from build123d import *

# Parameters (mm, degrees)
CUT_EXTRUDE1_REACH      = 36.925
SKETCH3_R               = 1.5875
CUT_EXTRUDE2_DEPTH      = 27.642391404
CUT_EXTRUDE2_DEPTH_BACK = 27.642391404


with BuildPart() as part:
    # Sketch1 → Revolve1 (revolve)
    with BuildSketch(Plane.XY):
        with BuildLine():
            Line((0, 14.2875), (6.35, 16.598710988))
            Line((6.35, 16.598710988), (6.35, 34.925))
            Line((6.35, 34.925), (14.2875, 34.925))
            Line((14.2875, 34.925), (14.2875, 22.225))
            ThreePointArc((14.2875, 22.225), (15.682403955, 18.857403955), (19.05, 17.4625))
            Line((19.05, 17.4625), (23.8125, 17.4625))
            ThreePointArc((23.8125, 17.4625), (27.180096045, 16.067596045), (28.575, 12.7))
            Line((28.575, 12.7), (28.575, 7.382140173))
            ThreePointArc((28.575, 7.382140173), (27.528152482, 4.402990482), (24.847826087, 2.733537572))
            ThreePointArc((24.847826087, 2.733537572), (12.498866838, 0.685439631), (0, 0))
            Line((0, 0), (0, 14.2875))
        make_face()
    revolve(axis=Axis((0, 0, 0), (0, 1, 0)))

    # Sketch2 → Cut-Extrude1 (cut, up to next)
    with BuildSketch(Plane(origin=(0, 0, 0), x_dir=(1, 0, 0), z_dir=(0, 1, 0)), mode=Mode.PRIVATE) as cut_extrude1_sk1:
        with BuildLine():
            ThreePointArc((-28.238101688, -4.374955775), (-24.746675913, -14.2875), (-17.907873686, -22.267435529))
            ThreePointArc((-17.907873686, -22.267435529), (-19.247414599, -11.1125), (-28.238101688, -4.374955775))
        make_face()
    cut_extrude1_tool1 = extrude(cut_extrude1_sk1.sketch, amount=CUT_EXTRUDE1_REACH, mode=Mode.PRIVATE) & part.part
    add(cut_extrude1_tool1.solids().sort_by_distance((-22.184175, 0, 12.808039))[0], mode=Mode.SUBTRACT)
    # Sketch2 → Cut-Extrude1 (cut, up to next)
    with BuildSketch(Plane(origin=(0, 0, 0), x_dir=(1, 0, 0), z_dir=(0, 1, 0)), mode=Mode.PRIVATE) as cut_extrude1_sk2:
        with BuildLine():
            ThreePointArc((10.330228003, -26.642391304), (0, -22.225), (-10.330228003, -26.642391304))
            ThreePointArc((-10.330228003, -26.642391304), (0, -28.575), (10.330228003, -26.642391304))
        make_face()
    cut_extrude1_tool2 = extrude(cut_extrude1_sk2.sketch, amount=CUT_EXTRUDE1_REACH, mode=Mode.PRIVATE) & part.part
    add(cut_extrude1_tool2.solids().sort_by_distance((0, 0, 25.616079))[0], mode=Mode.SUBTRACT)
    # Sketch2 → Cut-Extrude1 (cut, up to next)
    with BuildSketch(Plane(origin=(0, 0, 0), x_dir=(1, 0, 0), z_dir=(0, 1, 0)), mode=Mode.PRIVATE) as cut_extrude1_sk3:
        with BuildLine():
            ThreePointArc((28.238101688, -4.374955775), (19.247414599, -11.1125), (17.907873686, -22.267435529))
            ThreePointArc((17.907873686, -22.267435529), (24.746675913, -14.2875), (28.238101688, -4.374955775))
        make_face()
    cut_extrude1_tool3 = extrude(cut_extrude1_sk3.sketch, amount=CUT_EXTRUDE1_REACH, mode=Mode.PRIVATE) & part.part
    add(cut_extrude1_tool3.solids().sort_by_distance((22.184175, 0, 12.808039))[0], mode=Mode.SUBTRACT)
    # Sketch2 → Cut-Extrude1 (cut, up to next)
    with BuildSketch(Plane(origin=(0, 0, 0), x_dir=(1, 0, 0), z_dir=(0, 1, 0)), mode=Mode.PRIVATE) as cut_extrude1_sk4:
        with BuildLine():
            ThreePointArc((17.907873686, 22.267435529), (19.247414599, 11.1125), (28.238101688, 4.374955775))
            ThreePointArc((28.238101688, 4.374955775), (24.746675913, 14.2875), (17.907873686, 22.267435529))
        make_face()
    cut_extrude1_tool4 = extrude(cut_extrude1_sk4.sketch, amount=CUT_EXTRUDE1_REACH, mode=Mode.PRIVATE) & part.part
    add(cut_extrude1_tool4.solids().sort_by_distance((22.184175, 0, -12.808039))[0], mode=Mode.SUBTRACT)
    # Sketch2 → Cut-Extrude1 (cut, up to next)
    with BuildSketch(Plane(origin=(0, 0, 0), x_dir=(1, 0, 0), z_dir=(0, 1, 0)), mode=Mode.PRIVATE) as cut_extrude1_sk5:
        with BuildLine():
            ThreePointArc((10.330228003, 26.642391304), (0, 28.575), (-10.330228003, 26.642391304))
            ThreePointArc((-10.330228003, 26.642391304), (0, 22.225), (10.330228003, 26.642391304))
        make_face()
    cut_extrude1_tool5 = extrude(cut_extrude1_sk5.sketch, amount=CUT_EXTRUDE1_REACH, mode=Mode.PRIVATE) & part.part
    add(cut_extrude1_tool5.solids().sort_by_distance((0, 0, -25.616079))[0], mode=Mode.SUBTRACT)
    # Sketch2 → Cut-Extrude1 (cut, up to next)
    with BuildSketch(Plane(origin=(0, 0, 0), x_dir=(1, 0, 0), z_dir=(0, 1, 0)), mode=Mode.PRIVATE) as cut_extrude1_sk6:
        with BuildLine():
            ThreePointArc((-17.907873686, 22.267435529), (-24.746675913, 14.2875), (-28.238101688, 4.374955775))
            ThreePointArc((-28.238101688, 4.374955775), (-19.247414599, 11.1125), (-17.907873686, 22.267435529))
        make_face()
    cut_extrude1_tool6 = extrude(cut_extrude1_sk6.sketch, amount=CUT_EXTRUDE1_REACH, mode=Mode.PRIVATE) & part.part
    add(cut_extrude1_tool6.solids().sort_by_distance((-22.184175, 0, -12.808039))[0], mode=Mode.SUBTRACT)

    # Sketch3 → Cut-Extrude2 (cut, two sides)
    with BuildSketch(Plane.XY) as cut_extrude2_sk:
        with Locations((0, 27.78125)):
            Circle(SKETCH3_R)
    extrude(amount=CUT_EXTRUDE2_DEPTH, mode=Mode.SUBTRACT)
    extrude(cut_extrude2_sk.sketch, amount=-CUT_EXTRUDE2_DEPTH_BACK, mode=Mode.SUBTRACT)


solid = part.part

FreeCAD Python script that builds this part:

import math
import FreeCAD as App
import Part
import Sketcher
Q = App.Units.Quantity

doc = App.newDocument("Part")
body = doc.addObject("PartDesign::Body", "Body")

sketch1 = body.newObject("Sketcher::SketchObject", "Sketch")
sketch1.AttachmentSupport = (doc.getObject("XY_Plane"), [""])
sketch1.MapMode = "FlatFace"
sketch1.addGeometry(Part.LineSegment(App.Vector(6.3, 16.6, 0), App.Vector(0, 14.3, 0)), False)
sketch1.addGeometry(Part.LineSegment(App.Vector(0, 14.3, 0), App.Vector(0, 0, 0)), False)
sketch1.addGeometry(Part.ArcOfCircle(Part.Circle(App.Vector(0, 114.3, 0), App.Vector(0, 0, 1), 114.3), math.radians(-90), math.radians(-77.44)), False)
sketch1.addGeometry(Part.ArcOfCircle(Part.Circle(App.Vector(23.8, 7.4, 0), App.Vector(0, 0, 1), 4.8), math.radians(-77), math.radians(0)), False)
sketch1.addGeometry(Part.LineSegment(App.Vector(28.6, 7.4, 0), App.Vector(28.6, 12.7, 0)), False)
sketch1.addGeometry(Part.ArcOfCircle(Part.Circle(App.Vector(23.8, 12.7, 0), App.Vector(0, 0, 1), 4.8), math.radians(0), math.radians(90)), False)
sketch1.addGeometry(Part.LineSegment(App.Vector(23.8, 17.5, 0), App.Vector(19.1, 17.5, 0)), False)
sketch1.addGeometry(Part.ArcOfCircle(Part.Circle(App.Vector(19.1, 22.2, 0), App.Vector(0, 0, 1), 4.8), math.radians(-180), math.radians(-90)), False)
sketch1.addGeometry(Part.LineSegment(App.Vector(14.3, 22.2, 0), App.Vector(14.3, 34.9, 0)), False)
sketch1.addGeometry(Part.LineSegment(App.Vector(14.3, 34.9, 0), App.Vector(6.3, 34.9, 0)), False)
sketch1.addGeometry(Part.LineSegment(App.Vector(6.3, 34.9, 0), App.Vector(6.3, 16.6, 0)), False)
sketch1.addConstraint(Sketcher.Constraint("Coincident", 0, 2, 1, 1))
sketch1.addConstraint(Sketcher.Constraint("Coincident", 1, 2, 2, 1))
sketch1.addConstraint(Sketcher.Constraint("Tangent", 2, 2, 3, 1))
sketch1.addConstraint(Sketcher.Constraint("Tangent", 3, 2, 4, 1))
sketch1.addConstraint(Sketcher.Constraint("Tangent", 4, 2, 5, 1))
sketch1.addConstraint(Sketcher.Constraint("Tangent", 5, 2, 6, 1))
sketch1.addConstraint(Sketcher.Constraint("Tangent", 6, 2, 7, 2))
sketch1.addConstraint(Sketcher.Constraint("Tangent", 7, 1, 8, 1))
sketch1.addConstraint(Sketcher.Constraint("Coincident", 8, 2, 9, 1))
sketch1.addConstraint(Sketcher.Constraint("Coincident", 9, 2, 10, 1))
sketch1.addConstraint(Sketcher.Constraint("Coincident", 10, 2, 0, 1))
sketch1.addConstraint(Sketcher.Constraint("Vertical", 1))
sketch1.addConstraint(Sketcher.Constraint("Vertical", 4))
sketch1.addConstraint(Sketcher.Constraint("Horizontal", 6))
sketch1.addConstraint(Sketcher.Constraint("Vertical", 8))
sketch1.addConstraint(Sketcher.Constraint("Horizontal", 9))
sketch1.addConstraint(Sketcher.Constraint("Vertical", 10))
sketch1.addConstraint(Sketcher.Constraint("Coincident", 1, 2, -1, 1))
sketch1.addConstraint(Sketcher.Constraint("Equal", 3, 5))
sketch1.addConstraint(Sketcher.Constraint("Equal", 5, 7))
sketch1.addConstraint(Sketcher.Constraint("PointOnObject", 2, 3, -2))
sketch1.addConstraint(Sketcher.Constraint("Radius", 2, Q("4.5 in")))
sketch1.addConstraint(Sketcher.Constraint("DistanceY", 8, 1, 8, 2, Q("0.5 in")))
sketch1.addConstraint(Sketcher.Constraint("Angle", 0, Q("-160 deg")))
sketch1.addConstraint(Sketcher.Constraint("Radius", 3, Q("0.1875 in")))
sketch1.addConstraint(Sketcher.Constraint("DistanceY", 5, 3, 2, 3, Q("4 in")))
sketch1.addConstraint(Sketcher.Constraint("DistanceX", 9, 2, 7, 3, Q("0.5 in")))
sketch1.addConstraint(Sketcher.Constraint("DistanceX", 6, 2, 6, 1, Q("0.1875 in")))
sketch1.addConstraint(Sketcher.Constraint("DistanceY", 1, 2, 1, 1, Q("0.5625 in")))
sketch1.addConstraint(Sketcher.Constraint("DistanceX", -1, 1, 7, 3, Q("0.75 in")))
revolution = body.newObject("PartDesign::Revolution", "Revolution")
revolution.Profile = sketch1
revolution.ReferenceAxis = (sketch1, ["V_Axis"])
revolution.Angle = 360

sketch2 = body.newObject("Sketcher::SketchObject", "Sketch001")
sketch2.AttachmentSupport = (doc.getObject("XZ_Plane"), [""])
sketch2.MapMode = "FlatFace"
sketch2.addGeometry(Part.ArcOfCircle(Part.Circle(App.Vector(0, 0, 0), App.Vector(0, 0, 1), 29), math.radians(129), math.radians(171)), False)
sketch2.addGeometry(Part.ArcOfCircle(Part.Circle(App.Vector(-32, 18, 0), App.Vector(0, 0, 1), 14), math.radians(-76), math.radians(16)), False)
sketch2.addConstraint(Sketcher.Constraint("Coincident", 0, 1, 1, 2))
sketch2.addConstraint(Sketcher.Constraint("Coincident", 1, 1, 0, 2))
sketch2.addConstraint(Sketcher.Constraint("Coincident", 0, 3, -1, 1))
sketch2.addConstraint(Sketcher.Constraint("Radius", 0, Q("1.125 in")))
sketch2.addConstraint(Sketcher.Constraint("Radius", 1, Q("0.5625 in")))
sketch2.addConstraint(Sketcher.Constraint("DistanceY", -1, 1, 1, 3, Q("0.71875 in")))
sketch2.addConstraint(Sketcher.Constraint("DistanceX", 1, 1, -1, 1, Q("28.238102 mm")))
pocket1 = body.newObject("PartDesign::Pocket", "Pocket")
pocket1.Profile = sketch2
pocket1.Length = Q("0.6875 in")

sketch3 = body.newObject("Sketcher::SketchObject", "Sketch002")
sketch3.AttachmentSupport = (doc.getObject("XZ_Plane"), [""])
sketch3.MapMode = "FlatFace"
sketch3.addGeometry(Part.ArcOfCircle(Part.Circle(App.Vector(0, 37, 0), App.Vector(0, 0, 1), 14), math.radians(-136), math.radians(-44)), False)
sketch3.addGeometry(Part.ArcOfCircle(Part.Circle(App.Vector(0, 0, 0), App.Vector(0, 0, 1), 29), math.radians(69), math.radians(111)), False)
sketch3.addConstraint(Sketcher.Constraint("Coincident", 0, 1, 1, 2))
sketch3.addConstraint(Sketcher.Constraint("Coincident", 1, 1, 0, 2))
sketch3.addConstraint(Sketcher.Constraint("Coincident", 1, 3, -1, 1))
sketch3.addConstraint(Sketcher.Constraint("PointOnObject", 0, 3, -2))
sketch3.addConstraint(Sketcher.Constraint("Radius", 0, Q("0.5625 in")))
sketch3.addConstraint(Sketcher.Constraint("Radius", 1, Q("1.125 in")))
sketch3.addConstraint(Sketcher.Constraint("DistanceY", -1, 1, 0, 3, Q("1.4375 in")))
pocket2 = body.newObject("PartDesign::Pocket", "Pocket001")
pocket2.Profile = sketch3
pocket2.Length = Q("0.6875 in")

sketch4 = body.newObject("Sketcher::SketchObject", "Sketch003")
sketch4.AttachmentSupport = (doc.getObject("XZ_Plane"), [""])
sketch4.MapMode = "FlatFace"
sketch4.addGeometry(Part.ArcOfCircle(Part.Circle(App.Vector(32, 18, 0), App.Vector(0, 0, 1), 14), math.radians(164), math.radians(256)), False)
sketch4.addGeometry(Part.ArcOfCircle(Part.Circle(App.Vector(0, 0, 0), App.Vector(0, 0, 1), 29), math.radians(9), math.radians(51)), False)
sketch4.addConstraint(Sketcher.Constraint("Coincident", 0, 1, 1, 2))
sketch4.addConstraint(Sketcher.Constraint("Coincident", 1, 1, 0, 2))
sketch4.addConstraint(Sketcher.Constraint("Coincident", 1, 3, -1, 1))
sketch4.addConstraint(Sketcher.Constraint("Radius", 0, Q("0.5625 in")))
sketch4.addConstraint(Sketcher.Constraint("Radius", 1, Q("1.125 in")))
sketch4.addConstraint(Sketcher.Constraint("DistanceY", -1, 1, 0, 3, Q("0.71875 in")))
sketch4.addConstraint(Sketcher.Constraint("DistanceX", -1, 1, 1, 1, Q("28.238102 mm")))
pocket3 = body.newObject("PartDesign::Pocket", "Pocket002")
pocket3.Profile = sketch4
pocket3.Length = Q("0.6875 in")

sketch5 = body.newObject("Sketcher::SketchObject", "Sketch004")
sketch5.AttachmentSupport = (doc.getObject("XZ_Plane"), [""])
sketch5.MapMode = "FlatFace"
sketch5.addGeometry(Part.ArcOfCircle(Part.Circle(App.Vector(32, -18, 0), App.Vector(0, 0, 1), 14), math.radians(104), math.radians(196)), False)
sketch5.addGeometry(Part.ArcOfCircle(Part.Circle(App.Vector(0, 0, 0), App.Vector(0, 0, 1), 29), math.radians(-51), math.radians(-9)), False)
sketch5.addConstraint(Sketcher.Constraint("Coincident", 0, 1, 1, 2))
sketch5.addConstraint(Sketcher.Constraint("Coincident", 1, 1, 0, 2))
sketch5.addConstraint(Sketcher.Constraint("Coincident", 1, 3, -1, 1))
sketch5.addConstraint(Sketcher.Constraint("Radius", 0, Q("0.5625 in")))
sketch5.addConstraint(Sketcher.Constraint("Radius", 1, Q("1.125 in")))
sketch5.addConstraint(Sketcher.Constraint("DistanceY", 0, 3, -1, 1, Q("0.71875 in")))
sketch5.addConstraint(Sketcher.Constraint("DistanceX", -1, 1, 0, 1, Q("28.238102 mm")))
pocket4 = body.newObject("PartDesign::Pocket", "Pocket003")
pocket4.Profile = sketch5
pocket4.Length = Q("0.6875 in")

sketch6 = body.newObject("Sketcher::SketchObject", "Sketch005")
sketch6.AttachmentSupport = (doc.getObject("XZ_Plane"), [""])
sketch6.MapMode = "FlatFace"
sketch6.addGeometry(Part.ArcOfCircle(Part.Circle(App.Vector(0, 0, 0), App.Vector(0, 0, 1), 29), math.radians(-111), math.radians(-69)), False)
sketch6.addGeometry(Part.ArcOfCircle(Part.Circle(App.Vector(0, -37, 0), App.Vector(0, 0, 1), 14), math.radians(44), math.radians(136)), False)
sketch6.addConstraint(Sketcher.Constraint("Coincident", 0, 1, 1, 2))
sketch6.addConstraint(Sketcher.Constraint("Coincident", 1, 1, 0, 2))
sketch6.addConstraint(Sketcher.Constraint("Coincident", 0, 3, -1, 1))
sketch6.addConstraint(Sketcher.Constraint("PointOnObject", 1, 3, -2))
sketch6.addConstraint(Sketcher.Constraint("Radius", 0, Q("1.125 in")))
sketch6.addConstraint(Sketcher.Constraint("Radius", 1, Q("0.5625 in")))
sketch6.addConstraint(Sketcher.Constraint("DistanceY", 1, 3, -1, 1, Q("1.4375 in")))
pocket5 = body.newObject("PartDesign::Pocket", "Pocket004")
pocket5.Profile = sketch6
pocket5.Length = Q("0.6875 in")

sketch7 = body.newObject("Sketcher::SketchObject", "Sketch006")
sketch7.AttachmentSupport = (doc.getObject("XZ_Plane"), [""])
sketch7.MapMode = "FlatFace"
sketch7.addGeometry(Part.ArcOfCircle(Part.Circle(App.Vector(0, 0, 0), App.Vector(0, 0, 1), 29), math.radians(-171), math.radians(-129)), False)
sketch7.addGeometry(Part.ArcOfCircle(Part.Circle(App.Vector(-32, -18, 0), App.Vector(0, 0, 1), 14), math.radians(-16), math.radians(76)), False)
sketch7.addConstraint(Sketcher.Constraint("Coincident", 0, 1, 1, 2))
sketch7.addConstraint(Sketcher.Constraint("Coincident", 1, 1, 0, 2))
sketch7.addConstraint(Sketcher.Constraint("Coincident", 0, 3, -1, 1))
sketch7.addConstraint(Sketcher.Constraint("Radius", 0, Q("1.125 in")))
sketch7.addConstraint(Sketcher.Constraint("Radius", 1, Q("0.5625 in")))
sketch7.addConstraint(Sketcher.Constraint("DistanceY", 1, 3, -1, 1, Q("0.71875 in")))
sketch7.addConstraint(Sketcher.Constraint("DistanceX", 0, 1, -1, 1, Q("28.238102 mm")))
pocket6 = body.newObject("PartDesign::Pocket", "Pocket005")
pocket6.Profile = sketch7
pocket6.Length = Q("0.6875 in")

sketch8 = body.newObject("Sketcher::SketchObject", "Sketch007")
sketch8.AttachmentSupport = (doc.getObject("XY_Plane"), [""])
sketch8.MapMode = "FlatFace"
sketch8.addGeometry(Part.Circle(App.Vector(0, 27.8, 0), App.Vector(0, 0, 1), 1.6), False)
sketch8.addConstraint(Sketcher.Constraint("PointOnObject", 0, 3, -2))
sketch8.addConstraint(Sketcher.Constraint("Diameter", 0, Q("0.125 in")))
sketch8.addConstraint(Sketcher.Constraint("DistanceY", -1, 1, 0, 3, Q("1.09375 in")))
pocket7 = body.newObject("PartDesign::Pocket", "Pocket006")
pocket7.Profile = sketch8
pocket7.Type = "ThroughAll"
pocket7.Midplane = True

doc.recompute()
